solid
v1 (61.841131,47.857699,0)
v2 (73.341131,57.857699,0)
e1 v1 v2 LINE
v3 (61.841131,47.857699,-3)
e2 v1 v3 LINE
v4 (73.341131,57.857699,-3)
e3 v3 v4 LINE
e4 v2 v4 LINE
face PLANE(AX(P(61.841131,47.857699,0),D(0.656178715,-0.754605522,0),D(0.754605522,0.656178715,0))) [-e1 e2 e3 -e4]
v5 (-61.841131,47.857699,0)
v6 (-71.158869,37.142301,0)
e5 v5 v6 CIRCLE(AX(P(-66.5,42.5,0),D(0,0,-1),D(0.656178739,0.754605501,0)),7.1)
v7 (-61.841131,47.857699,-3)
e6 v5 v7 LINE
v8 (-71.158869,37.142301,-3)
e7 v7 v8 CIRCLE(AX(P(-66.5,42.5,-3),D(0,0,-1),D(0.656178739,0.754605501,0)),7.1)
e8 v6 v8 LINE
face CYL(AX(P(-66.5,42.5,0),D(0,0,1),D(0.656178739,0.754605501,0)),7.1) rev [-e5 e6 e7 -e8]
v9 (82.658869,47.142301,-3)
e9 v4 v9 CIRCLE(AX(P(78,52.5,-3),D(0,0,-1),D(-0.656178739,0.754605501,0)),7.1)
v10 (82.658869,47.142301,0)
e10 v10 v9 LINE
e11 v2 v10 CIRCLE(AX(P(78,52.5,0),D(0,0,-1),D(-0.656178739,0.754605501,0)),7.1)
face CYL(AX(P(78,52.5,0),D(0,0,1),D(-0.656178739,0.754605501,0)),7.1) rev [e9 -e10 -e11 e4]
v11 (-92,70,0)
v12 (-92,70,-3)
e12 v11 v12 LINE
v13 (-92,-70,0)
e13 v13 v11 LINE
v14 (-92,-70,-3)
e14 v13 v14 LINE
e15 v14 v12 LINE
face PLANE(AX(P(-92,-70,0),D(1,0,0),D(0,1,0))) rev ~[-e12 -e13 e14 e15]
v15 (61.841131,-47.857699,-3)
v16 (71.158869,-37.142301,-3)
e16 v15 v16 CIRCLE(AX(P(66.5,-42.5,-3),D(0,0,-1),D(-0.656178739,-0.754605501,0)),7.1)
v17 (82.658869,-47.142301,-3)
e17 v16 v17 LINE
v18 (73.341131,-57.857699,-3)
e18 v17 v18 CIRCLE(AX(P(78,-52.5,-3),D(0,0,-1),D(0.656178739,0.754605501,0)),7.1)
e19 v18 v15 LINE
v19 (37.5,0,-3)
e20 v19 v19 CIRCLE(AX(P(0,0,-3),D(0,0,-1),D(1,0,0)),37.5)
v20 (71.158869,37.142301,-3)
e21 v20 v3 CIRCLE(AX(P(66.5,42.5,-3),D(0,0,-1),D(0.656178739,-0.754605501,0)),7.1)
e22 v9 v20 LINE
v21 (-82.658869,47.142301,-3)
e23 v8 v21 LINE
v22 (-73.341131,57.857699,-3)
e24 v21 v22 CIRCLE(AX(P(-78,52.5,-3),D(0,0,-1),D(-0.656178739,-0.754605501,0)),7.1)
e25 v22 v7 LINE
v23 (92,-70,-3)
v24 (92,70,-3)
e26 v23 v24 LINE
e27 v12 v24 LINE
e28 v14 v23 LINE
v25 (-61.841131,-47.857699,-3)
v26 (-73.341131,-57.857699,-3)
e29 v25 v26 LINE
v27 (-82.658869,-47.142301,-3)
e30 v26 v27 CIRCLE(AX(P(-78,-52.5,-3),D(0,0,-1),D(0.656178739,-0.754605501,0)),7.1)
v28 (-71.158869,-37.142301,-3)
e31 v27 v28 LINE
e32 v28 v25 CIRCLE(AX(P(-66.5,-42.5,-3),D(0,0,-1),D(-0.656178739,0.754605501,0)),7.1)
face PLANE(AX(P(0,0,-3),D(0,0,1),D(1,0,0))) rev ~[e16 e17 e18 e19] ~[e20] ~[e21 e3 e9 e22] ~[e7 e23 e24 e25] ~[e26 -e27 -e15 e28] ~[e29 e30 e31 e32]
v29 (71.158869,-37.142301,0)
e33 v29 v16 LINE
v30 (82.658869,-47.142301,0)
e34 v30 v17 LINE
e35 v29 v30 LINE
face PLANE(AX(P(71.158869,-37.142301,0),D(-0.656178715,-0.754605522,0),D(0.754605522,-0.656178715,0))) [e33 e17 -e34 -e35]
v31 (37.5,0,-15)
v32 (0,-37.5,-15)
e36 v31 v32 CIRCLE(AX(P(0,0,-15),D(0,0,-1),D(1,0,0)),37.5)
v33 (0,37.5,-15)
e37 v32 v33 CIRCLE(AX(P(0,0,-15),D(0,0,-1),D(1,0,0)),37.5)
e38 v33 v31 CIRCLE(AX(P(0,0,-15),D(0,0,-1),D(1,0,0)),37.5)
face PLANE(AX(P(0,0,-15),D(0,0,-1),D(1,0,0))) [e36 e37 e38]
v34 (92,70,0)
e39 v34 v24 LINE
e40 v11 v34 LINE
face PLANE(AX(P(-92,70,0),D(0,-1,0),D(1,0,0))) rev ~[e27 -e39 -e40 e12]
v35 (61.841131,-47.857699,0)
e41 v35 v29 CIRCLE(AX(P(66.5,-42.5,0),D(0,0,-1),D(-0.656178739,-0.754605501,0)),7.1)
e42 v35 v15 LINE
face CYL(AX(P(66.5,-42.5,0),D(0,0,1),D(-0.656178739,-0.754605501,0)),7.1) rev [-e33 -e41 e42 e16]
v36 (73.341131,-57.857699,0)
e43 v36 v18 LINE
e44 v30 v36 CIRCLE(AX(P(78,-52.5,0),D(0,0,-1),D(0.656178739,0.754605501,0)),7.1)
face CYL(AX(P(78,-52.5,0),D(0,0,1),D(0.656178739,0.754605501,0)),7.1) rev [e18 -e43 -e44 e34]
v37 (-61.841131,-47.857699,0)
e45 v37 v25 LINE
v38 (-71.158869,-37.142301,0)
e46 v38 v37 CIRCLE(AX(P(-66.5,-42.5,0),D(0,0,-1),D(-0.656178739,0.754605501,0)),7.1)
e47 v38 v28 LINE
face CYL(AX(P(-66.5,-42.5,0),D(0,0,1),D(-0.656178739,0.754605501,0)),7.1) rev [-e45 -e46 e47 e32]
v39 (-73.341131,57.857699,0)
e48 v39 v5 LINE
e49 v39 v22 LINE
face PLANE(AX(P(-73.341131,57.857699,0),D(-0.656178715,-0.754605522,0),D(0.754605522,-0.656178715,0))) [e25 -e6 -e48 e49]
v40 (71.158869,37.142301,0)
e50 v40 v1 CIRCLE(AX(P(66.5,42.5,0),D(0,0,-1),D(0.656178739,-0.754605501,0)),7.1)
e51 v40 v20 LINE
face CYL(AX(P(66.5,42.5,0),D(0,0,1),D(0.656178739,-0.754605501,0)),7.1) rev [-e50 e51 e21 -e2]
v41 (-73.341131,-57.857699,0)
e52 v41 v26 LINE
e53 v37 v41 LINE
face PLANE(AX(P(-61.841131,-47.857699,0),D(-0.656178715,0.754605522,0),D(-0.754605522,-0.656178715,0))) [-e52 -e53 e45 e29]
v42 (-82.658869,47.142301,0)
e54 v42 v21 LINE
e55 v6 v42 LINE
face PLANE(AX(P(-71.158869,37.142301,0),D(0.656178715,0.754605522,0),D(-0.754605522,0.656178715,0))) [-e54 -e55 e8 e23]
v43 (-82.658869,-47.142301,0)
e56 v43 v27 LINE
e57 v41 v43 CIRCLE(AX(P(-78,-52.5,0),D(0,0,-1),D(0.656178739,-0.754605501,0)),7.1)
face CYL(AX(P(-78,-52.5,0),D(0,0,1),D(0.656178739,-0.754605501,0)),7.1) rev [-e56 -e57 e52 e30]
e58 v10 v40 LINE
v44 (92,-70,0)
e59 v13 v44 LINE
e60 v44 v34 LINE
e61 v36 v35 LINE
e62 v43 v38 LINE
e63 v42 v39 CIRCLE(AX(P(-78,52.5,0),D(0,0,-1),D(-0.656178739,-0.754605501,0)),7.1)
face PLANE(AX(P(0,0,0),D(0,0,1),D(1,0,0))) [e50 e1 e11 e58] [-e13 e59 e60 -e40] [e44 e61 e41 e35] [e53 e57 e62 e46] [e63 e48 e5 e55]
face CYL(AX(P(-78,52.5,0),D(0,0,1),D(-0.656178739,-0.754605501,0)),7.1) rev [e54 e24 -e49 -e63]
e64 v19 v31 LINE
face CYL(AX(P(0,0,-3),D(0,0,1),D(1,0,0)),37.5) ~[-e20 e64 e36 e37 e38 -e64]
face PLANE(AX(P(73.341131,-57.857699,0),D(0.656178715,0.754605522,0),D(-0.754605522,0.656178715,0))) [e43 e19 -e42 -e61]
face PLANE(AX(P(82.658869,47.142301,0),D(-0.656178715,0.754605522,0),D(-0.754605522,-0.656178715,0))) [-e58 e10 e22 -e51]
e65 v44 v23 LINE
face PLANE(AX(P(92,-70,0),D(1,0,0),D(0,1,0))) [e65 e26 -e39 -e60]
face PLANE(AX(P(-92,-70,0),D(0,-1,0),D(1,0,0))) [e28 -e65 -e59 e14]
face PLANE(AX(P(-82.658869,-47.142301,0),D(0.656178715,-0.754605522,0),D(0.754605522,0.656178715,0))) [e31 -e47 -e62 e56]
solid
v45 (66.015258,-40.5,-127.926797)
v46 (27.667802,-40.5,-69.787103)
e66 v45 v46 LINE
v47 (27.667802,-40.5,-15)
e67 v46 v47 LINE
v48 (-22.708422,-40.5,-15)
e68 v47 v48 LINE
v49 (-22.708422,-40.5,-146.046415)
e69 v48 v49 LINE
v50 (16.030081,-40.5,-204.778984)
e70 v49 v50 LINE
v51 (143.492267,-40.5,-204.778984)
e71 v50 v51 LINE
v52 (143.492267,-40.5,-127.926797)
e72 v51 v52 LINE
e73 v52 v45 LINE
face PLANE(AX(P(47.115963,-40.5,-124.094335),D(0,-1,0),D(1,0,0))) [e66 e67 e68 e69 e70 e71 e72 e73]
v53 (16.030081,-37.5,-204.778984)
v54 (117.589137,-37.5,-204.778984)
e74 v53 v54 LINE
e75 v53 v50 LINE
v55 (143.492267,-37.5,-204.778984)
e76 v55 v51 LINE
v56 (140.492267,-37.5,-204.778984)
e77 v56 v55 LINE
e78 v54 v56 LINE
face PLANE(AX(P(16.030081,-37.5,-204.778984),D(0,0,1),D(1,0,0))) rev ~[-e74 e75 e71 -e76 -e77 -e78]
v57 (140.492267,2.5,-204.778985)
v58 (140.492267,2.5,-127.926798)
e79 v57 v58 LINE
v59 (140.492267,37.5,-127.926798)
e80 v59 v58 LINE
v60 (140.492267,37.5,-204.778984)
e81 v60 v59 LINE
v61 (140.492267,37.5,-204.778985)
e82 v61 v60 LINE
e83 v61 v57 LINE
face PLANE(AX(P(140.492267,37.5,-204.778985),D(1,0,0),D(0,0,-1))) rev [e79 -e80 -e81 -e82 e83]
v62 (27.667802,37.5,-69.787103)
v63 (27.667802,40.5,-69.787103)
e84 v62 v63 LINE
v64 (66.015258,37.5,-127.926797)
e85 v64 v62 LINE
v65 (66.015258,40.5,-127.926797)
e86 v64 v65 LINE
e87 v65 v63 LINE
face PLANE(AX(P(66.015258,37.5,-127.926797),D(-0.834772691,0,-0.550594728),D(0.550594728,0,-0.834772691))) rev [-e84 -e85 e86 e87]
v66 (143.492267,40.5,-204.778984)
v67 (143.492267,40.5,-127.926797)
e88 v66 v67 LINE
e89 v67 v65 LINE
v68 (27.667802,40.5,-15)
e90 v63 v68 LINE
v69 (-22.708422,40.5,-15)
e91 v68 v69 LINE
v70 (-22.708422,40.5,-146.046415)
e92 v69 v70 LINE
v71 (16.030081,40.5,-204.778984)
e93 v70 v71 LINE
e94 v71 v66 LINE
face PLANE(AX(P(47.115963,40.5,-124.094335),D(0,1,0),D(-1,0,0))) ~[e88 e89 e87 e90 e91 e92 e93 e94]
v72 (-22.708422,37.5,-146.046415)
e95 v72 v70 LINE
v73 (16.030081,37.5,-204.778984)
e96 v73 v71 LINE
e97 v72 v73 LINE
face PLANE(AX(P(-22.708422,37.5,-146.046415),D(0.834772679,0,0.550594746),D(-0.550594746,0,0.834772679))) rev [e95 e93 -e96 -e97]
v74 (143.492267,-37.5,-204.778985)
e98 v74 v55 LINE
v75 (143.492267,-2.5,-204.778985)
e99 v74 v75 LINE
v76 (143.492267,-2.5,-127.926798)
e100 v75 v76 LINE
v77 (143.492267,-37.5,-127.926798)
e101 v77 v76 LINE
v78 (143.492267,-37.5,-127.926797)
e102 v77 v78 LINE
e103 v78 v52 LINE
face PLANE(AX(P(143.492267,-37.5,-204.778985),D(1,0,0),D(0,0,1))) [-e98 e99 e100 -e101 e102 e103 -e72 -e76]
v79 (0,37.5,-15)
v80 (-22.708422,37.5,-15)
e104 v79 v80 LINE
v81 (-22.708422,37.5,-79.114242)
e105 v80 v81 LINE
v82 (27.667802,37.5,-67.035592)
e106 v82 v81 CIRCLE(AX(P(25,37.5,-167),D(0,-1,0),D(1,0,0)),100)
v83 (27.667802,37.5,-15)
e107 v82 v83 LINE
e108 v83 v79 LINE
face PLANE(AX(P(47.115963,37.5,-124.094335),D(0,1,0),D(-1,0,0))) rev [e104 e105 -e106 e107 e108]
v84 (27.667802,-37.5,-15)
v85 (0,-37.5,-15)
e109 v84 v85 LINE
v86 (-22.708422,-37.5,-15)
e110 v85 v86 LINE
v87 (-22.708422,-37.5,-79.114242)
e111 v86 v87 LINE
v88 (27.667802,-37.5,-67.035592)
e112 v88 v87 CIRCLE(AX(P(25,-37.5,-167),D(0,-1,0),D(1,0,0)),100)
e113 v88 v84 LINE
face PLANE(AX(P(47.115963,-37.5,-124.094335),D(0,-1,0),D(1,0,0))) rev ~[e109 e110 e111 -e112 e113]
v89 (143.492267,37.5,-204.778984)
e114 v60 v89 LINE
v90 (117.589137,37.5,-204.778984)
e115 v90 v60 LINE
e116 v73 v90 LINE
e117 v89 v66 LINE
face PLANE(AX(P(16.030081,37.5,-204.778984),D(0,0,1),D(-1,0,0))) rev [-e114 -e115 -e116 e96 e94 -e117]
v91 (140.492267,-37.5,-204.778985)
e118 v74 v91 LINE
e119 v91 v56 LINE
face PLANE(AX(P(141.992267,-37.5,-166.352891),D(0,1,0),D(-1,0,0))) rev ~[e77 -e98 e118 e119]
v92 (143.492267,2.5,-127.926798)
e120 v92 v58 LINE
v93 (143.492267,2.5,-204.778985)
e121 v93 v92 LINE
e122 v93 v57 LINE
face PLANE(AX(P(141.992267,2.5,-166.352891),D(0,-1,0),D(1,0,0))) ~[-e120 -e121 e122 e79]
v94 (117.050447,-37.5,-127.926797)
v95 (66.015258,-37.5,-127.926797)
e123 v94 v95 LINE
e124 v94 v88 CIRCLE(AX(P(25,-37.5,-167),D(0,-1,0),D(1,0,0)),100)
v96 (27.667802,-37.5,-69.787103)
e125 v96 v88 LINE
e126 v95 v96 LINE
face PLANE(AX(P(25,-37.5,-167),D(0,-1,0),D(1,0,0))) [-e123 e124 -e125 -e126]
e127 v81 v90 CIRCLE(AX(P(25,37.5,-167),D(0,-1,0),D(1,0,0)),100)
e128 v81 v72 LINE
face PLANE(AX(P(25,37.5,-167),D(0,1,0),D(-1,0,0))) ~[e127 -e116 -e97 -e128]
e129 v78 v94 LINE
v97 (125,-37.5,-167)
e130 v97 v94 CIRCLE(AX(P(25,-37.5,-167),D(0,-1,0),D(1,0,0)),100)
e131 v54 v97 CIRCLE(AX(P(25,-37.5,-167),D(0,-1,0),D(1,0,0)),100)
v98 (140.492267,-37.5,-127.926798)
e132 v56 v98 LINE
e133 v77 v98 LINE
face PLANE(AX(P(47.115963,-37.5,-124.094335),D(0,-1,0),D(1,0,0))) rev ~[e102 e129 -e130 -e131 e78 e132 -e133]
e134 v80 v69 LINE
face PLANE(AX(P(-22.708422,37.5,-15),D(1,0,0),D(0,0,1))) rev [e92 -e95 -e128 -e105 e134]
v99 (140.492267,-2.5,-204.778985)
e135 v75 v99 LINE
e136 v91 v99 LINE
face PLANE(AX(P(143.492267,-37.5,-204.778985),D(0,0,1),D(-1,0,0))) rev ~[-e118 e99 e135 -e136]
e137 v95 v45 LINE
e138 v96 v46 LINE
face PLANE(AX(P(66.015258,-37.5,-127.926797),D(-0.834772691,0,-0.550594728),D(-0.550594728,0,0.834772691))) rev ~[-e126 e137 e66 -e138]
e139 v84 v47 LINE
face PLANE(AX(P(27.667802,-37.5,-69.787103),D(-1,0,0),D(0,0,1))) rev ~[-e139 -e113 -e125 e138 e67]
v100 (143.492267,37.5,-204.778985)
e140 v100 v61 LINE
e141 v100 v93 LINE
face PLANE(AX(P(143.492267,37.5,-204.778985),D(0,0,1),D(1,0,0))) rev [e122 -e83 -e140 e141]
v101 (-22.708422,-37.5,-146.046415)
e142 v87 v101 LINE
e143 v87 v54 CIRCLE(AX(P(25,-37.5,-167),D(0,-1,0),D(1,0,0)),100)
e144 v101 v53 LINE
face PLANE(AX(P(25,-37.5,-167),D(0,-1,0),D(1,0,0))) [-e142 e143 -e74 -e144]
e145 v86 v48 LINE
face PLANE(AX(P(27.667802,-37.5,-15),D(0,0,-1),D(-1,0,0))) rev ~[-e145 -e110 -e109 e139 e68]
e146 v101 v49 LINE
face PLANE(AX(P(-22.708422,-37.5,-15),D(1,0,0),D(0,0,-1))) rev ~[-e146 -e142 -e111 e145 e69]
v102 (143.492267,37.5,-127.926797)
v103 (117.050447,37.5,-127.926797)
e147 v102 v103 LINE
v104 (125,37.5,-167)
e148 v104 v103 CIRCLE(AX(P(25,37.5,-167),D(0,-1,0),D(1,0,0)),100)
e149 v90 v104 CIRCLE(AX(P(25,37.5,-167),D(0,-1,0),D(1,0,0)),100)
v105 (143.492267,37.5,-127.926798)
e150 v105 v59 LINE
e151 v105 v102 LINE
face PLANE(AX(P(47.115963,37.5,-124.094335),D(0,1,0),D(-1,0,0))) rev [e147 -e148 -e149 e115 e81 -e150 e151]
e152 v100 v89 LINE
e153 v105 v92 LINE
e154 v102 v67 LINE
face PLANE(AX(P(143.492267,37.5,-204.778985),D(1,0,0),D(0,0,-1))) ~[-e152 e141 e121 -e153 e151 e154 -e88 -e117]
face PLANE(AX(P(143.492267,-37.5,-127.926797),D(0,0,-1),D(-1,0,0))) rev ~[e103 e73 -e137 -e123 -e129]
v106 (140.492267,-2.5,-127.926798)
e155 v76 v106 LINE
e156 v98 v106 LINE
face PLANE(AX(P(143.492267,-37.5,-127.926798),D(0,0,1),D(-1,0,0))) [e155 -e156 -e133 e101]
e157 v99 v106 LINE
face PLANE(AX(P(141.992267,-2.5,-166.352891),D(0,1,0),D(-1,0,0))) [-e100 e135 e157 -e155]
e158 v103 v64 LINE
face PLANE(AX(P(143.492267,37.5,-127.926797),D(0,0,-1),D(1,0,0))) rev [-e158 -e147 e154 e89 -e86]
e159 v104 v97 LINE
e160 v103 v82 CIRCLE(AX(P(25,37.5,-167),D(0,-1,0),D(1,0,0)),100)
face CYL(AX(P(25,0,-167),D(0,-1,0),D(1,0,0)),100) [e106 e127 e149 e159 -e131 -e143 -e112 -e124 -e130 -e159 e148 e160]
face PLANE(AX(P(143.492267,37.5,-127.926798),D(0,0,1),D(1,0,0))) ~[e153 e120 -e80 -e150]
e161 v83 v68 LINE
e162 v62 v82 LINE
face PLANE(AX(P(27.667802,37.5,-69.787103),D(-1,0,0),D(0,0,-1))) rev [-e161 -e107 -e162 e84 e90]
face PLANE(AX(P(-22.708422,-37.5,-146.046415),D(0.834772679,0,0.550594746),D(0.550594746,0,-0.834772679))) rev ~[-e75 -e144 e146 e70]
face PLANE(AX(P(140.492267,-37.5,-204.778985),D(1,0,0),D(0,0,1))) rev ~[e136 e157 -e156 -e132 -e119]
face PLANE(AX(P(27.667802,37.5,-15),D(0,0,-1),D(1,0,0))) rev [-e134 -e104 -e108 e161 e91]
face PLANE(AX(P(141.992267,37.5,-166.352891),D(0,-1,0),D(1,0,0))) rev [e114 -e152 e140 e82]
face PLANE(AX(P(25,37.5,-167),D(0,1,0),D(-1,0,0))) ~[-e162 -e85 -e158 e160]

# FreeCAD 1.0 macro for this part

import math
import FreeCAD as App
import Part
import Sketcher

V = App.Vector
Q = App.Units.Quantity


def add_polygon(sketch, points):
    """Adds a closed chain of lines whose ends are joined by coincident constraints."""
    first, n = sketch.GeometryCount, len(points)
    for a, b in zip(points, points[1:] + points[:1]):
        sketch.addGeometry(Part.LineSegment(App.Vector(*a, 0), App.Vector(*b, 0)), False)
    for i in range(n):
        sketch.addConstraint(Sketcher.Constraint("Coincident", first + i, 2, first + (i + 1) % n, 1))

doc = App.newDocument("Part")
body = doc.addObject("PartDesign::Body", "Body")

# Sketch on XY plane
sketch1 = body.newObject("Sketcher::SketchObject", "Sketch")
sketch1.AttachmentSupport = (doc.getObject("XY_Plane"), [""])
sketch1.MapMode = "FlatFace"
add_polygon(sketch1, [(-92, 70), (-92, -70), (92, -70), (92, 70)])  # lines 0-3
sketch1.addGeometry(Part.LineSegment(V(-82.658869, -47.142301, 0), V(-71.158869, -37.142301, 0)), False)  # 4
sketch1.addGeometry(Part.ArcOfCircle(Part.Circle(V(-66.5, -42.5, 0), V(0, 0, 1), 7.1), math.radians(-48.990911), math.radians(131.009089)), False)  # 5
sketch1.addGeometry(Part.LineSegment(V(-61.841131, -47.857699, 0), V(-73.341131, -57.857699, 0)), False)  # 6
sketch1.addGeometry(Part.ArcOfCircle(Part.Circle(V(-78, -52.5, 0), V(0, 0, 1), 7.1), math.radians(131.009089), math.radians(311.009089)), False)  # 7
sketch1.addGeometry(Part.LineSegment(V(73.341131, -57.857699, 0), V(61.841131, -47.857699, 0)), False)  # 8
sketch1.addGeometry(Part.ArcOfCircle(Part.Circle(V(66.5, -42.5, 0), V(0, 0, 1), 7.1), math.radians(48.990911), math.radians(228.990911)), False)  # 9
sketch1.addGeometry(Part.LineSegment(V(71.158869, -37.142301, 0), V(82.658869, -47.142301, 0)), False)  # 10
sketch1.addGeometry(Part.ArcOfCircle(Part.Circle(V(78, -52.5, 0), V(0, 0, 1), 7.1), math.radians(-131.009089), math.radians(48.990911)), False)  # 11
sketch1.addGeometry(Part.LineSegment(V(-71.158869, 37.142301, 0), V(-82.658869, 47.142301, 0)), False)  # 12
sketch1.addGeometry(Part.ArcOfCircle(Part.Circle(V(-78, 52.5, 0), V(0, 0, 1), 7.1), math.radians(48.990911), math.radians(228.990911)), False)  # 13
sketch1.addGeometry(Part.LineSegment(V(-73.341131, 57.857699, 0), V(-61.841131, 47.857699, 0)), False)  # 14
sketch1.addGeometry(Part.ArcOfCircle(Part.Circle(V(-66.5, 42.5, 0), V(0, 0, 1), 7.1), math.radians(-131.009089), math.radians(48.990911)), False)  # 15
sketch1.addGeometry(Part.LineSegment(V(61.841131, 47.857699, 0), V(73.341131, 57.857699, 0)), False)  # 16
sketch1.addGeometry(Part.ArcOfCircle(Part.Circle(V(78, 52.5, 0), V(0, 0, 1), 7.1), math.radians(-48.990911), math.radians(131.009089)), False)  # 17
sketch1.addGeometry(Part.LineSegment(V(82.658869, 47.142301, 0), V(71.158869, 37.142301, 0)), False)  # 18
sketch1.addGeometry(Part.ArcOfCircle(Part.Circle(V(66.5, 42.5, 0), V(0, 0, 1), 7.1), math.radians(131.009089), math.radians(311.009089)), False)  # 19
sketch1.addConstraint([
    Sketcher.Constraint("Tangent", 4, 2, 5, 2),
    Sketcher.Constraint("Tangent", 5, 1, 6, 1),
    Sketcher.Constraint("Tangent", 6, 2, 7, 2),
    Sketcher.Constraint("Tangent", 7, 1, 4, 1),
    Sketcher.Constraint("Tangent", 8, 2, 9, 2),
    Sketcher.Constraint("Tangent", 9, 1, 10, 1),
    Sketcher.Constraint("Tangent", 10, 2, 11, 2),
    Sketcher.Constraint("Tangent", 11, 1, 8, 1),
    Sketcher.Constraint("Tangent", 12, 2, 13, 2),
    Sketcher.Constraint("Tangent", 13, 1, 14, 1),
    Sketcher.Constraint("Tangent", 14, 2, 15, 2),
    Sketcher.Constraint("Tangent", 15, 1, 12, 1),
    Sketcher.Constraint("Tangent", 16, 2, 17, 2),
    Sketcher.Constraint("Tangent", 17, 1, 18, 1),
    Sketcher.Constraint("Tangent", 18, 2, 19, 2),
    Sketcher.Constraint("Tangent", 19, 1, 16, 1),
    Sketcher.Constraint("Vertical", 0),
    Sketcher.Constraint("Horizontal", 1),
    Sketcher.Constraint("Vertical", 2),
    Sketcher.Constraint("Horizontal", 3),
    Sketcher.Constraint("Equal", 5, 7),
    Sketcher.Constraint("Equal", 7, 9),
    Sketcher.Constraint("Equal", 9, 11),
    Sketcher.Constraint("Equal", 11, 13),
    Sketcher.Constraint("Equal", 13, 15),
    Sketcher.Constraint("Equal", 15, 17),
    Sketcher.Constraint("Equal", 17, 19),
    Sketcher.Constraint("Symmetric", 11, 3, 13, 3, -1, 1),
    Sketcher.Constraint("Symmetric", 9, 3, 15, 3, -1, 1),
    Sketcher.Constraint("Symmetric", 7, 3, 17, 3, -1, 1),
    Sketcher.Constraint("Symmetric", 5, 3, 19, 3, -1, 1),
    Sketcher.Constraint("Symmetric", 0, 2, 2, 2, -1, 1),
    Sketcher.Constraint("Symmetric", 5, 3, 9, 3, -2),
    Sketcher.Constraint("Symmetric", 7, 3, 11, 3, -2),
    Sketcher.Constraint("Radius", 5, Q("7.1 mm")),
    Sketcher.Constraint("DistanceX", 1, 1, 1, 2, Q("184 mm")),
    Sketcher.Constraint("DistanceY", 0, 2, 0, 1, Q("140 mm")),
    Sketcher.Constraint("DistanceX", 7, 3, -1, 1, Q("78 mm")),
    Sketcher.Constraint("DistanceY", 7, 3, 5, 3, Q("10 mm")),
    Sketcher.Constraint("DistanceX", 5, 3, 9, 3, Q("133 mm")),
    Sketcher.Constraint("DistanceY", 5, 3, 13, 3, Q("95 mm")),
])
pad1 = body.newObject("PartDesign::Pad", "Pad")
pad1.Profile = sketch1
pad1.Length = 3
pad1.Reversed = True

# Sketch on XY plane
sketch2 = body.newObject("Sketcher::SketchObject", "Sketch001")
sketch2.AttachmentSupport = (doc.getObject("XY_Plane"), [""])
sketch2.MapMode = "FlatFace"
sketch2.AttachmentOffset = App.Placement(V(0, 0, -3), App.Rotation())
sketch2.addGeometry(Part.Circle(V(0, 0, 0), V(0, 0, 1), 37.5), False)
sketch2.addConstraint([
    Sketcher.Constraint("Coincident", 0, 3, -1, 1),
    Sketcher.Constraint("Diameter", 0, Q("75 mm")),
])
pad2 = body.newObject("PartDesign::Pad", "Pad001")
pad2.Profile = sketch2
pad2.Length = 12
pad2.Reversed = True
body2 = doc.addObject("PartDesign::Body", "Body001")

# Sketch on XZ plane
sketch3 = body2.newObject("Sketcher::SketchObject", "Sketch002")
sketch3.AttachmentSupport = (doc.getObject("XZ_Plane001"), [""])
sketch3.MapMode = "FlatFace"
sketch3.addGeometry(Part.Circle(V(25, -167, 0), V(0, 0, 1), 100), False)
sketch3.addConstraint([
    Sketcher.Constraint("Diameter", 0, Q("200 mm")),
    Sketcher.Constraint("DistanceX", -1, 1, 0, 3, Q("25 mm")),
    Sketcher.Constraint("DistanceY", 0, 3, -1, 1, Q("167 mm")),
])
pad3 = body2.newObject("PartDesign::Pad", "Pad002")
pad3.Profile = sketch3
pad3.Length = 75
pad3.Midplane = True
body.AllowCompound = True
doc.recompute()

boolean = body.newObject("PartDesign::Boolean", "Boolean")
boolean.Type = "Fuse"
boolean.addObjects([body2])

# Sketch on XZ plane
sketch4 = body.newObject("Sketcher::SketchObject", "Sketch003")
sketch4.AttachmentSupport = (doc.getObject("XZ_Plane"), [""])
sketch4.MapMode = "FlatFace"
sketch4.AttachmentOffset = App.Placement(V(0, 0, 37.5), App.Rotation())
add_polygon(sketch4, [(27.667802, -15), (-22.708422, -15), (-22.708422, -146.046415), (16.030081, -204.778984), (143.492267, -204.778984), (143.492267, -127.926797), (66.015258, -127.926797), (27.667802, -69.787103)])  # lines 0-7
sketch4.addConstraint([
    Sketcher.Constraint("Horizontal", 0),
    Sketcher.Constraint("Vertical", 1),
    Sketcher.Constraint("Horizontal", 3),
    Sketcher.Constraint("Vertical", 4),
    Sketcher.Constraint("Horizontal", 5),
    Sketcher.Constraint("Vertical", 7),
    Sketcher.Constraint("DistanceY", 0, 2, -1, 1, Q("15 mm")),
    Sketcher.Constraint("DistanceX", 5, 2, 5, 1, Q("77.477009 mm")),
    Sketcher.Constraint("DistanceX", -1, 1, 6, 2, Q("27.667802 mm")),
    Sketcher.Constraint("Distance", 2, Q("70.35756 mm")),
    Sketcher.Constraint("DistanceX", 0, 2, 0, 1, Q("50.376224 mm")),
    Sketcher.Constraint("DistanceX", 3, 1, 3, 2, Q("127.462186 mm")),
    Sketcher.Constraint("DistanceY", 1, 2, 1, 1, Q("131.046415 mm")),
    Sketcher.Constraint("DistanceY", 4, 1, 4, 2, Q("76.852187 mm")),
    Sketcher.Constraint("DistanceY", 7, 1, 7, 2, Q("54.787103 mm")),
    Sketcher.Constraint("DistanceX", -1, 1, 2, 2, Q("16.030081 mm")),
])
pad4 = body.newObject("PartDesign::Pad", "Pad003")
pad4.Profile = sketch4
pad4.Length = 3

# Sketch on XZ plane
sketch5 = body.newObject("Sketcher::SketchObject", "Sketch004")
sketch5.AttachmentSupport = (doc.getObject("XZ_Plane"), [""])
sketch5.MapMode = "FlatFace"
sketch5.AttachmentOffset = App.Placement(V(0, 0, 37.5), App.Rotation())
add_polygon(sketch5, [(143.492267, -127.926798), (143.492267, -204.778985), (140.492267, -204.778985), (140.492267, -127.926798)])  # lines 0-3
sketch5.addConstraint([
    Sketcher.Constraint("Vertical", 0),
    Sketcher.Constraint("Horizontal", 1),
    Sketcher.Constraint("Vertical", 2),
    Sketcher.Constraint("Horizontal", 3),
    Sketcher.Constraint("DistanceX", 1, 2, 1, 1, Q("3 mm")),
    Sketcher.Constraint("DistanceY", 0, 2, 0, 1, Q("76.852187 mm")),
    Sketcher.Constraint("DistanceX", -1, 1, 0, 2, Q("143.492267 mm")),
    Sketcher.Constraint("DistanceY", 0, 2, -1, 1, Q("204.778985 mm")),
])
pad5 = body.newObject("PartDesign::Pad", "Pad004")
pad5.Profile = sketch5
pad5.Length = 35
pad5.Reversed = True
body3 = doc.addObject("PartDesign::Body", "Body002")
body3.AllowCompound = True
doc.recompute()

body3.BaseFeature = body
doc.recompute()

mirroring = doc.addObject("Part::Mirroring", "Mirroring")
mirroring.Source = body
mirroring.Base = V(0, 0, 0)
mirroring.Normal = V(0, -1, 0)
body4 = doc.addObject("PartDesign::Body", "Body003")
body4.BaseFeature = mirroring
boolean2 = body3.newObject("PartDesign::Boolean", "Boolean001")
boolean2.Type = "Fuse"
boolean2.addObjects([body4])
doc.recompute()
mirroring.Visibility = False

doc.recompute()
